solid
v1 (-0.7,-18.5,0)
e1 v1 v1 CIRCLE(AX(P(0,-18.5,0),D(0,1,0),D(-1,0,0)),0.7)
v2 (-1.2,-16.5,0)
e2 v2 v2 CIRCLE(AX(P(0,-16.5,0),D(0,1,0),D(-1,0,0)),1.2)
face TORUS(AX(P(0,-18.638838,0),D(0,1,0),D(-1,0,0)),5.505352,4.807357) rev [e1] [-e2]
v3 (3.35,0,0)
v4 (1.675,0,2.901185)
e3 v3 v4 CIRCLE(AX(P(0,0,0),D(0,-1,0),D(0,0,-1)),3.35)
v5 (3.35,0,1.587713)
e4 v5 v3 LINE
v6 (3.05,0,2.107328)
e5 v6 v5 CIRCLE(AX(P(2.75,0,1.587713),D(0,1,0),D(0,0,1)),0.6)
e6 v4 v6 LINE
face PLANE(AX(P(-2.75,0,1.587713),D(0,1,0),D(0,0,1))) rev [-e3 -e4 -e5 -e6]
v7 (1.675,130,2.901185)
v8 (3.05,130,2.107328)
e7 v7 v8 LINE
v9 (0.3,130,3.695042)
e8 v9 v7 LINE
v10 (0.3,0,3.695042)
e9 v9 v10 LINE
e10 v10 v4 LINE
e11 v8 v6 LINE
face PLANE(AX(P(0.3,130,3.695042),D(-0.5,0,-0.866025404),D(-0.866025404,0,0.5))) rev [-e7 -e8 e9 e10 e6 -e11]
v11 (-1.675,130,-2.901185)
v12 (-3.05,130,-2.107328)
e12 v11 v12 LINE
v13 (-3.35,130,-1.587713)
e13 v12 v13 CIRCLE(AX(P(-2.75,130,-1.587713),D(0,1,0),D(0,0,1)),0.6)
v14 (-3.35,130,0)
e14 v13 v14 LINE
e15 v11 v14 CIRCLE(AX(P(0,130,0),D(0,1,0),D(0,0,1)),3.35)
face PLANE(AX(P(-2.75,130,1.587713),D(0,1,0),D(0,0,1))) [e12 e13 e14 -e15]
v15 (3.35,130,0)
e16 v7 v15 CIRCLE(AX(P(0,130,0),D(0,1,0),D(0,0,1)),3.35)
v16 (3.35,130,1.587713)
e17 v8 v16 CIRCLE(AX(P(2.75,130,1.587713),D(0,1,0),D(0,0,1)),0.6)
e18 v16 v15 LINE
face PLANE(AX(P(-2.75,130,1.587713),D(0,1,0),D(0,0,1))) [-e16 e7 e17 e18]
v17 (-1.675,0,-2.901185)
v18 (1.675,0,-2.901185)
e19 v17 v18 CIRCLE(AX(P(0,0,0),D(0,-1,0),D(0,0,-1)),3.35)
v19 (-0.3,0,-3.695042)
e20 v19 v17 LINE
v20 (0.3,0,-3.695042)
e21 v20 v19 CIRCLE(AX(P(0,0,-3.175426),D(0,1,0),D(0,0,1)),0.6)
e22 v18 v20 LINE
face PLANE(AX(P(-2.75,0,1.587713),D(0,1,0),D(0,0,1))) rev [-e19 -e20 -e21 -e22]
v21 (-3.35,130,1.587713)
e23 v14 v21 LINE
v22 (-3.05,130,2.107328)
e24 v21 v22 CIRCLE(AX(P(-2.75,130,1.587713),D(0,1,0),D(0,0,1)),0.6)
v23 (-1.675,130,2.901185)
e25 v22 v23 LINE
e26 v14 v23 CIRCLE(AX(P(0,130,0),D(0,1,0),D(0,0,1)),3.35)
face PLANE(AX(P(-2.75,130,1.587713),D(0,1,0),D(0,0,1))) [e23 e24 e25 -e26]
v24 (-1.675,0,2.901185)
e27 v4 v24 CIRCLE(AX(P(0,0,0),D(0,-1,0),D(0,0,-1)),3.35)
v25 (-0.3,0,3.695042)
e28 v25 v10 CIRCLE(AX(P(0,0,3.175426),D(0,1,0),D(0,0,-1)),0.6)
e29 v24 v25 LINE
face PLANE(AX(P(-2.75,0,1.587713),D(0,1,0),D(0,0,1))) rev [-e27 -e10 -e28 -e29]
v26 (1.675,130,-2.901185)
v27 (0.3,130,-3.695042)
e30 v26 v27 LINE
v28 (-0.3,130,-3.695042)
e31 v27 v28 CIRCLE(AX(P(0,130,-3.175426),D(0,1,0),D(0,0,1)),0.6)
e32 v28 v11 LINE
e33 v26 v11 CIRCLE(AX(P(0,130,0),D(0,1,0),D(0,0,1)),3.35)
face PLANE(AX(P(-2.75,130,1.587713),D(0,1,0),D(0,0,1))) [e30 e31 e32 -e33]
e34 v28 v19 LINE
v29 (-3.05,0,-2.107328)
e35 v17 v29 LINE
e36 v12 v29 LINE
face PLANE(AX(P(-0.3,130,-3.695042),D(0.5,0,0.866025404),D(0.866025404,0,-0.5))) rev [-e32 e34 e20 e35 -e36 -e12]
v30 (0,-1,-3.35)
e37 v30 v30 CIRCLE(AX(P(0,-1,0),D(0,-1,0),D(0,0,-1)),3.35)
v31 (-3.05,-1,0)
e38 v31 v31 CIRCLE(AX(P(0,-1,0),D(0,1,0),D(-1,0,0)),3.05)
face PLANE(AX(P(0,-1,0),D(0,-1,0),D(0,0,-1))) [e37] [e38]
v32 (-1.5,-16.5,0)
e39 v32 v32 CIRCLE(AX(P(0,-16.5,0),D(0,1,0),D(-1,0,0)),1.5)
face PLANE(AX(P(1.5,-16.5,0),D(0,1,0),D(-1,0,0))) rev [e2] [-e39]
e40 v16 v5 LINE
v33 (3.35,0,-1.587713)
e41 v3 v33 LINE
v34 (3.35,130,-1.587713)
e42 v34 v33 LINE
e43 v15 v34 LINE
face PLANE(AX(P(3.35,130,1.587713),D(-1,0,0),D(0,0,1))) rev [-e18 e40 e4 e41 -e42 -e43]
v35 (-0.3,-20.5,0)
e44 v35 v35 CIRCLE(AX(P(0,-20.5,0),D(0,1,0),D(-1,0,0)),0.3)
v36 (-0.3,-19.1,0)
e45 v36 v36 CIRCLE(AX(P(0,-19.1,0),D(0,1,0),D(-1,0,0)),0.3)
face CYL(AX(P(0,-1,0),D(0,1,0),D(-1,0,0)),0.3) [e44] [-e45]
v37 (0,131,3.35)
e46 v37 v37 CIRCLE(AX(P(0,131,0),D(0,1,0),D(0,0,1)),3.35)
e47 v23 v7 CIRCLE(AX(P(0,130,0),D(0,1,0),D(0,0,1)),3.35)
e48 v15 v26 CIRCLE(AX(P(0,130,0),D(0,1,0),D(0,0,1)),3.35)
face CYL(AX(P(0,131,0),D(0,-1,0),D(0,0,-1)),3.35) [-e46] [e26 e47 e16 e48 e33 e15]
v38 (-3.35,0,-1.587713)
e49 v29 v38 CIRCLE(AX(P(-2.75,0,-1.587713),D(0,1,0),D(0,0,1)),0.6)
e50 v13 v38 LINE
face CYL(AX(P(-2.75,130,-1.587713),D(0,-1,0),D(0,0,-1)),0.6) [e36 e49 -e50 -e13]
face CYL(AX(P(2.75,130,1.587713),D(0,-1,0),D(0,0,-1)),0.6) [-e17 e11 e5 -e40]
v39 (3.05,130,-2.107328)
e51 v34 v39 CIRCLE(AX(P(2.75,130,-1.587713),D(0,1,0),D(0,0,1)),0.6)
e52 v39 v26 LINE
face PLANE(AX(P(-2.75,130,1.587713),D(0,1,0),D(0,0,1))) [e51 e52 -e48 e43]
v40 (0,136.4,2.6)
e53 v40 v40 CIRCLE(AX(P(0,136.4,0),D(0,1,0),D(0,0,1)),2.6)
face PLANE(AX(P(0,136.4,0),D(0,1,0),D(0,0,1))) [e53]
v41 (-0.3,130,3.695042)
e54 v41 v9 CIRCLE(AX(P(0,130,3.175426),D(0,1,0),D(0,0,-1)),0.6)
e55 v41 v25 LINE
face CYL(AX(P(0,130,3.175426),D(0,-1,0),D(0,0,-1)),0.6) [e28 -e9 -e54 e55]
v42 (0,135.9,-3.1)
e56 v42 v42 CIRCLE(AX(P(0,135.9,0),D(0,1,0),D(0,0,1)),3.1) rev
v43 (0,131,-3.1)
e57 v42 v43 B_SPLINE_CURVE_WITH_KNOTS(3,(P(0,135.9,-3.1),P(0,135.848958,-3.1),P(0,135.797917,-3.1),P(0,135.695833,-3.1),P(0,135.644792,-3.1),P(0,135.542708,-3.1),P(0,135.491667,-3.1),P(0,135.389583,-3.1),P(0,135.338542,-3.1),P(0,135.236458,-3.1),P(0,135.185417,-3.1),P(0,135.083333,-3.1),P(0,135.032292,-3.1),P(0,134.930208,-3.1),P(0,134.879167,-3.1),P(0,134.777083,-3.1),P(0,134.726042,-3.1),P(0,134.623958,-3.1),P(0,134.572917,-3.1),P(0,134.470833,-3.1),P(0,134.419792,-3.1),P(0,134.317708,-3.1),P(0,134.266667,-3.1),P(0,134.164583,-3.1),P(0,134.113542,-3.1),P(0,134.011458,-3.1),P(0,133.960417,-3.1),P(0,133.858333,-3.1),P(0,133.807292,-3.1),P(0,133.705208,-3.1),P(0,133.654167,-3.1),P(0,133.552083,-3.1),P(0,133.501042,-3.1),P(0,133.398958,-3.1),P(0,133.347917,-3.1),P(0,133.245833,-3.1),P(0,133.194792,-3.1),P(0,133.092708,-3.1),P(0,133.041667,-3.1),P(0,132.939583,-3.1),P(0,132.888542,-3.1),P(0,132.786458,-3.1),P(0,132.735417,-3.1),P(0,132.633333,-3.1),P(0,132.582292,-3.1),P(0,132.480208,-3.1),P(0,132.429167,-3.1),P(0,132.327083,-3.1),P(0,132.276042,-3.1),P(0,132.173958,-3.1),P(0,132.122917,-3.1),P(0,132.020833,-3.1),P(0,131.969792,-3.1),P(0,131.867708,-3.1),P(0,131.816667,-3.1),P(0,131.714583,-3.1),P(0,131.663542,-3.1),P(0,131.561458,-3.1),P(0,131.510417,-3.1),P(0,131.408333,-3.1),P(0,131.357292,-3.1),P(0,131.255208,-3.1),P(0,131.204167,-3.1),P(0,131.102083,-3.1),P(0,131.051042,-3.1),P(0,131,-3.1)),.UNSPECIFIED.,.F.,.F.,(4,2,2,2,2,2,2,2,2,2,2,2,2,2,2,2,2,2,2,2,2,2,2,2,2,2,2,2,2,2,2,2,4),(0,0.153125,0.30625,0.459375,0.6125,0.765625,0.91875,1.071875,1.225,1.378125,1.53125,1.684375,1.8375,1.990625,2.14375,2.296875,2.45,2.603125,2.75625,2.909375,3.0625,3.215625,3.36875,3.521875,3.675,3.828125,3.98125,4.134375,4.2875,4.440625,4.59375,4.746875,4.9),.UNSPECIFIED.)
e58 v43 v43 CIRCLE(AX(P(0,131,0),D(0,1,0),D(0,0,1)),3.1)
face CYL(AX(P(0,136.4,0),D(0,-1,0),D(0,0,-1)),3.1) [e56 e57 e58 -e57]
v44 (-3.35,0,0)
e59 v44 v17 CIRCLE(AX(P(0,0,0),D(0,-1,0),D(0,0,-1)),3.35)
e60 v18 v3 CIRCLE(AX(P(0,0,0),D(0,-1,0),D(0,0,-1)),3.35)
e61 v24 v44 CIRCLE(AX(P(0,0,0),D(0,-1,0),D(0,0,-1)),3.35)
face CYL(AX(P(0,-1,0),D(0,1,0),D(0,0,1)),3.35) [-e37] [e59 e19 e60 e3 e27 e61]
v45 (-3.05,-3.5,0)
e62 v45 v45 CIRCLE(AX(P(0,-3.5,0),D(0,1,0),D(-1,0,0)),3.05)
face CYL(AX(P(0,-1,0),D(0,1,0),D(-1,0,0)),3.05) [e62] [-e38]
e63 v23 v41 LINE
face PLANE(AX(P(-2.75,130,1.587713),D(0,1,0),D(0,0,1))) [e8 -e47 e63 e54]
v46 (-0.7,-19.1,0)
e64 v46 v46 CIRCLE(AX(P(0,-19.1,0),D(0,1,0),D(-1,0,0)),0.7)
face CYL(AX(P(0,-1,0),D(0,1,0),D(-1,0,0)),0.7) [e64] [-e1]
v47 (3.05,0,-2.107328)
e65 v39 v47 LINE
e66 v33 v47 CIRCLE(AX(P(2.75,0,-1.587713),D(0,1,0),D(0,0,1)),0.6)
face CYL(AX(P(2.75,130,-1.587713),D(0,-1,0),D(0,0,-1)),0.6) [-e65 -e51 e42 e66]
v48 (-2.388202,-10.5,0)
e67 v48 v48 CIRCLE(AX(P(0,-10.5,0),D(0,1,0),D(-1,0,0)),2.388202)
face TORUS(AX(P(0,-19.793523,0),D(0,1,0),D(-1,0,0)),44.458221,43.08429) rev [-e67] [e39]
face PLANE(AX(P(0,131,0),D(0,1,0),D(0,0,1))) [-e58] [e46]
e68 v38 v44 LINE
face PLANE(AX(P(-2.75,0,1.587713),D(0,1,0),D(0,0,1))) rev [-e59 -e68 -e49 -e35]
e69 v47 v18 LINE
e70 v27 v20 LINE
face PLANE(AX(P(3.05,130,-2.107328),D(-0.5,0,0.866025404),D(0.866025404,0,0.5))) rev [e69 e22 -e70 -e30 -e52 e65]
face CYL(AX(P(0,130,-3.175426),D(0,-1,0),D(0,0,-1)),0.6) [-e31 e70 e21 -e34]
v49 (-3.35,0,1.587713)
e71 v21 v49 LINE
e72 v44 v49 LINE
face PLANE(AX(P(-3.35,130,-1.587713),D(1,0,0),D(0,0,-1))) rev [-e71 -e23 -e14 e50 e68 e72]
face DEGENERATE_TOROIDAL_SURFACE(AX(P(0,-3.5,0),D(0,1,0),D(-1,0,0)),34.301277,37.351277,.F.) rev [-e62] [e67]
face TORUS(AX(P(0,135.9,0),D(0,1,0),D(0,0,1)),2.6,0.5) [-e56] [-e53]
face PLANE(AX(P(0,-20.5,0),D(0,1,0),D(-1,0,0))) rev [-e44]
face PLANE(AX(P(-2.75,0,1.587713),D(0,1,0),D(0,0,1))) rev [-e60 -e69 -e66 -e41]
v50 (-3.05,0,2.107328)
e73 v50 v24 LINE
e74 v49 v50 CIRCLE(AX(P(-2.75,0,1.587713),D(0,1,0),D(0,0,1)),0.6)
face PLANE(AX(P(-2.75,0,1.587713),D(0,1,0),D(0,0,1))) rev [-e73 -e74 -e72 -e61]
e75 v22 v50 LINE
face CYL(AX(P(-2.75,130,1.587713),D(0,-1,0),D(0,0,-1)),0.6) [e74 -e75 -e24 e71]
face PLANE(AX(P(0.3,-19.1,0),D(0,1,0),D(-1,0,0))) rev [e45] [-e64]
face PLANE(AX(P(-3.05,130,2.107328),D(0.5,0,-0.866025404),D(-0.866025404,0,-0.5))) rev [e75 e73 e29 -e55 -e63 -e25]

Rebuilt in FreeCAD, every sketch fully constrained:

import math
import FreeCAD as App
import Part
import Sketcher
from FreeCAD import Vector
Q = App.Units.Quantity


def edges_at(feature, points):
    """Names of the edges that pass closest to the given points."""
    edges = feature.Shape.Edges
    near = lambda p: min(range(len(edges)), key=lambda i: edges[i].distToShape(Part.Vertex(*p))[0])
    return sorted({f"Edge{near(p) + 1}" for p in points})

doc = App.newDocument("Part")
body = doc.addObject("PartDesign::Body", "Body")

sketch1 = body.newObject("Sketcher::SketchObject", "Sketch")
sketch1.AttachmentSupport = (doc.getObject("XZ_Plane"), [""])
sketch1.MapMode = "FlatFace"
sketch1.addGeometry(Part.LineSegment(Vector(0.3, 3.7, 0), Vector(3, 2.1, 0)), False)
sketch1.addGeometry(Part.ArcOfCircle(Part.Circle(Vector(2.7, 1.6, 0), Vector(0, 0, 1), 0.6), math.radians(0), math.radians(60)), False)
sketch1.addGeometry(Part.LineSegment(Vector(3.4, 1.6, 0), Vector(3.4, -1.6, 0)), False)
sketch1.addGeometry(Part.ArcOfCircle(Part.Circle(Vector(2.7, -1.6, 0), Vector(0, 0, 1), 0.6), math.radians(-60), math.radians(0)), False)
sketch1.addGeometry(Part.LineSegment(Vector(3, -2.1, 0), Vector(0.3, -3.7, 0)), False)
sketch1.addGeometry(Part.ArcOfCircle(Part.Circle(Vector(0, -3.2, 0), Vector(0, 0, 1), 0.6), math.radians(-120), math.radians(-60)), False)
sketch1.addGeometry(Part.LineSegment(Vector(-0.3, -3.7, 0), Vector(-3, -2.1, 0)), False)
sketch1.addGeometry(Part.ArcOfCircle(Part.Circle(Vector(-2.7, -1.6, 0), Vector(0, 0, 1), 0.6), math.radians(-180), math.radians(-120)), False)
sketch1.addGeometry(Part.LineSegment(Vector(-3.4, -1.6, 0), Vector(-3.4, 1.6, 0)), False)
sketch1.addGeometry(Part.ArcOfCircle(Part.Circle(Vector(-2.7, 1.6, 0), Vector(0, 0, 1), 0.6), math.radians(120), math.radians(180)), False)
sketch1.addGeometry(Part.LineSegment(Vector(-3, 2.1, 0), Vector(-0.3, 3.7, 0)), False)
sketch1.addGeometry(Part.ArcOfCircle(Part.Circle(Vector(0, 3.2, 0), Vector(0, 0, 1), 0.6), math.radians(60), math.radians(120)), False)
sketch1.addConstraint(Sketcher.Constraint("Tangent", 0, 2, 1, 2))
sketch1.addConstraint(Sketcher.Constraint("Tangent", 1, 1, 2, 1))
sketch1.addConstraint(Sketcher.Constraint("Tangent", 2, 2, 3, 2))
sketch1.addConstraint(Sketcher.Constraint("Tangent", 3, 1, 4, 1))
sketch1.addConstraint(Sketcher.Constraint("Tangent", 4, 2, 5, 2))
sketch1.addConstraint(Sketcher.Constraint("Tangent", 5, 1, 6, 1))
sketch1.addConstraint(Sketcher.Constraint("Tangent", 6, 2, 7, 2))
sketch1.addConstraint(Sketcher.Constraint("Tangent", 7, 1, 8, 1))
sketch1.addConstraint(Sketcher.Constraint("Tangent", 8, 2, 9, 2))
sketch1.addConstraint(Sketcher.Constraint("Tangent", 9, 1, 10, 1))
sketch1.addConstraint(Sketcher.Constraint("Tangent", 10, 2, 11, 2))
sketch1.addConstraint(Sketcher.Constraint("Tangent", 11, 1, 0, 1))
sketch1.addConstraint(Sketcher.Constraint("Vertical", 2))
sketch1.addConstraint(Sketcher.Constraint("Vertical", 8))
sketch1.addConstraint(Sketcher.Constraint("Equal", 1, 3))
sketch1.addConstraint(Sketcher.Constraint("Equal", 3, 5))
sketch1.addConstraint(Sketcher.Constraint("Equal", 5, 7))
sketch1.addConstraint(Sketcher.Constraint("Equal", 7, 9))
sketch1.addConstraint(Sketcher.Constraint("Equal", 9, 11))
sketch1.addConstraint(Sketcher.Constraint("Symmetric", 1, 3, 7, 3, -1, 1))
sketch1.addConstraint(Sketcher.Constraint("Symmetric", 5, 3, 11, 3, -1, 1))
sketch1.addConstraint(Sketcher.Constraint("Symmetric", 4, 2, 5, 1, -2))
sketch1.addConstraint(Sketcher.Constraint("Parallel", 4, 10))
sketch1.addConstraint(Sketcher.Constraint("Radius", 1, 0.6))
sketch1.addConstraint(Sketcher.Constraint("Angle", 0, Q("-30 deg")))
sketch1.addConstraint(Sketcher.Constraint("DistanceX", 7, 3, 3, 3, 5.5))
sketch1.addConstraint(Sketcher.Constraint("DistanceY", 2, 2, 2, 1, 3.175426))
pad1 = body.newObject("PartDesign::Pad", "Pad")
pad1.Profile = sketch1
pad1.Length = 130
pad1.Reversed = True

sketch2 = body.newObject("Sketcher::SketchObject", "Sketch001")
sketch2.AttachmentSupport = (doc.getObject("XZ_Plane"), [""])
sketch2.MapMode = "FlatFace"
sketch2.AttachmentOffset = App.Placement(Vector(0, 0, -130), App.Rotation())
sketch2.addGeometry(Part.Circle(Vector(0, 0, 0), Vector(0, 0, 1), 3.4), False)
sketch2.addConstraint(Sketcher.Constraint("Coincident", 0, 3, -1, 1))
sketch2.addConstraint(Sketcher.Constraint("Diameter", 0, 6.7))
pad2 = body.newObject("PartDesign::Pad", "Pad001")
pad2.Profile = sketch2
pad2.Length = 1
pad2.Reversed = True

sketch3 = body.newObject("Sketcher::SketchObject", "Sketch002")
sketch3.AttachmentSupport = (doc.getObject("XZ_Plane"), [""])
sketch3.MapMode = "FlatFace"
sketch3.AttachmentOffset = App.Placement(Vector(0, 0, -131), App.Rotation())
sketch3.addGeometry(Part.Circle(Vector(0, 0, 0), Vector(0, 0, 1), 3.1), False)
sketch3.addConstraint(Sketcher.Constraint("Coincident", 0, 3, -1, 1))
sketch3.addConstraint(Sketcher.Constraint("Diameter", 0, 6.2))
pad3 = body.newObject("PartDesign::Pad", "Pad002")
pad3.Profile = sketch3
pad3.Length = 5.4
pad3.Reversed = True
doc.recompute()

fillet = body.newObject("PartDesign::Fillet", "Fillet")
fillet.Base = (pad3, edges_at(pad3, [(0, 136.4, 3.1)]))
fillet.Radius = 0.5

sketch4 = body.newObject("Sketcher::SketchObject", "Sketch003")
sketch4.AttachmentSupport = (doc.getObject("XZ_Plane"), [""])
sketch4.MapMode = "FlatFace"
sketch4.AttachmentOffset = App.Placement(Vector(0, 0, 1), App.Rotation())
sketch4.addGeometry(Part.Circle(Vector(0, 0, 0), Vector(0, 0, 1), 3.4), False)
sketch4.addConstraint(Sketcher.Constraint("Coincident", 0, 3, -1, 1))
sketch4.addConstraint(Sketcher.Constraint("Diameter", 0, 6.7))
pad4 = body.newObject("PartDesign::Pad", "Pad003")
pad4.Profile = sketch4
pad4.Length = 1
pad4.Reversed = True

sketch5 = body.newObject("Sketcher::SketchObject", "Sketch004")
sketch5.AttachmentSupport = (doc.getObject("XY_Plane"), [""])
sketch5.MapMode = "FlatFace"
sketch5.addGeometry(Part.LineSegment(Vector(3.05, -3.5, 0), Vector(3.05, -1, 0)), False)
sketch5.addGeometry(Part.LineSegment(Vector(3.05, -1, 0), Vector(0, -1, 0)), False)
sketch5.addGeometry(Part.LineSegment(Vector(0, -1, 0), Vector(0, -20.5, 0)), False)
sketch5.addGeometry(Part.LineSegment(Vector(0, -20.5, 0), Vector(0.3, -20.5, 0)), False)
sketch5.addGeometry(Part.LineSegment(Vector(0.3, -20.5, 0), Vector(0.3, -19.1, 0)), False)
sketch5.addGeometry(Part.LineSegment(Vector(0.3, -19.1, 0), Vector(0.7, -19.1, 0)), False)
sketch5.addGeometry(Part.LineSegment(Vector(0.7, -19.1, 0), Vector(0.7, -18.5, 0)), False)
sketch5.addGeometry(Part.ArcOfCircle(Part.Circle(Vector(5.51, -18.64, 0), Vector(0, 0, 1), 4.81), math.radians(154), math.radians(178)), False)
sketch5.addGeometry(Part.LineSegment(Vector(1.2, -16.5, 0), Vector(1.5, -16.5, 0)), False)
sketch5.addGeometry(Part.ArcOfCircle(Part.Circle(Vector(44.46, -19.79, 0), Vector(0, 0, 1), 43.08), math.radians(167.54), math.radians(175.62)), False)
sketch5.addGeometry(Part.ArcOfCircle(Part.Circle(Vector(-34.3, -3.5, 0), Vector(0, 0, 1), 37.35), math.radians(-10.8), math.radians(0)), False)
sketch5.addConstraint(Sketcher.Constraint("Coincident", 0, 2, 1, 1))
sketch5.addConstraint(Sketcher.Constraint("Coincident", 1, 2, 2, 1))
sketch5.addConstraint(Sketcher.Constraint("Coincident", 2, 2, 3, 1))
sketch5.addConstraint(Sketcher.Constraint("Coincident", 3, 2, 4, 1))
sketch5.addConstraint(Sketcher.Constraint("Coincident", 4, 2, 5, 1))
sketch5.addConstraint(Sketcher.Constraint("Coincident", 5, 2, 6, 1))
sketch5.addConstraint(Sketcher.Constraint("Coincident", 6, 2, 7, 2))
sketch5.addConstraint(Sketcher.Constraint("Coincident", 7, 1, 8, 1))
sketch5.addConstraint(Sketcher.Constraint("Coincident", 8, 2, 9, 2))
sketch5.addConstraint(Sketcher.Constraint("Coincident", 9, 1, 10, 1))
sketch5.addConstraint(Sketcher.Constraint("Tangent", 10, 2, 0, 1))
sketch5.addConstraint(Sketcher.Constraint("Vertical", 0))
sketch5.addConstraint(Sketcher.Constraint("Horizontal", 1))
sketch5.addConstraint(Sketcher.Constraint("Vertical", 2))
sketch5.addConstraint(Sketcher.Constraint("Horizontal", 3))
sketch5.addConstraint(Sketcher.Constraint("Vertical", 4))
sketch5.addConstraint(Sketcher.Constraint("Horizontal", 5))
sketch5.addConstraint(Sketcher.Constraint("Vertical", 6))
sketch5.addConstraint(Sketcher.Constraint("Horizontal", 8))
sketch5.addConstraint(Sketcher.Constraint("PointOnObject", 1, 2, -2))
sketch5.addConstraint(Sketcher.Constraint("Equal", 3, 8))
sketch5.addConstraint(Sketcher.Constraint("DistanceX", 3, 1, 3, 2, 0.3))
sketch5.addConstraint(Sketcher.Constraint("DistanceX", 5, 1, 5, 2, 0.4))
sketch5.addConstraint(Sketcher.Constraint("DistanceY", 0, 1, 0, 2, 2.5))
sketch5.addConstraint(Sketcher.Constraint("DistanceY", 2, 2, 2, 1, 19.5))
sketch5.addConstraint(Sketcher.Constraint("DistanceY", 4, 1, 4, 2, 1.4))
sketch5.addConstraint(Sketcher.Constraint("DistanceY", 6, 1, 6, 2, 0.6))
sketch5.addConstraint(Sketcher.Constraint("DistanceY", 0, 2, -1, 1, 1.0))
sketch5.addConstraint(Sketcher.Constraint("DistanceY", 6, 2, 7, 1, 2.0))
sketch5.addConstraint(Sketcher.Constraint("DistanceY", 8, 2, 9, 1, 6.0))
sketch5.addConstraint(Sketcher.Constraint("DistanceX", 1, 2, 1, 1, 3.05))
sketch5.addConstraint(Sketcher.Constraint("DistanceX", -1, 1, 7, 1, 1.2))
sketch5.addConstraint(Sketcher.Constraint("Radius", 9, 43.08429))
sketch5.addConstraint(Sketcher.Constraint("Radius", 7, 4.807357))
sketch5.addConstraint(Sketcher.Constraint("Radius", 10, 37.351277))
revolution = body.newObject("PartDesign::Revolution", "Revolution")
revolution.Profile = sketch5
revolution.ReferenceAxis = (sketch5, ["V_Axis"])
revolution.Angle = 360

doc.recompute()
